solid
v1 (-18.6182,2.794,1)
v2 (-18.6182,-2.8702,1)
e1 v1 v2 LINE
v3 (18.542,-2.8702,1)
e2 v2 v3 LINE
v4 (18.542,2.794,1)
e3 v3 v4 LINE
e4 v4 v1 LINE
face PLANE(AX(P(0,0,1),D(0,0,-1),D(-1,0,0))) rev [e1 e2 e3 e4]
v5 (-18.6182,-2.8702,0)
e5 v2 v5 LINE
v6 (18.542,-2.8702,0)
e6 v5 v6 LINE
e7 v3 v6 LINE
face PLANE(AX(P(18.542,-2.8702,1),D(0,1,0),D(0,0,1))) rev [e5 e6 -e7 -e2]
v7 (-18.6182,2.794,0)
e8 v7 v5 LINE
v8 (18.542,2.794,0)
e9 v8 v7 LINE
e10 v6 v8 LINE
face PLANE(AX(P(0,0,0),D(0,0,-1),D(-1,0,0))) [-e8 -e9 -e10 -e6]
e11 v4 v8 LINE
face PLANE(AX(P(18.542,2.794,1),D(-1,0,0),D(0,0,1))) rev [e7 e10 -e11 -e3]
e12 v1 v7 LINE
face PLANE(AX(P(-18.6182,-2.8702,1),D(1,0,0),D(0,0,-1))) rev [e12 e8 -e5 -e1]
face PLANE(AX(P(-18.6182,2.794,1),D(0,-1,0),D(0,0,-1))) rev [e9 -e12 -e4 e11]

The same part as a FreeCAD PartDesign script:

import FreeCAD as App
import Part
import Sketcher
from FreeCAD import Vector
Q = App.Units.Quantity

doc = App.newDocument("Part")
params = doc.addObject("Spreadsheet::Sheet", "Params")
for row, (alias, value) in enumerate([
    ("sketch1_width", "1.463 in"),
    ("sketch1_height", "0.223 in"),
    ("pad1_length", "1 mm"),
], start=1):
    params.set(f"A{row}", alias)
    params.set(f"B{row}", "=" + value)
    params.setAlias(f"B{row}", alias)

body = doc.addObject("PartDesign::Body", "Body")

sketch1 = body.newObject("Sketcher::SketchObject", "Sketch")
sketch1.AttachmentSupport = (doc.getObject("XY_Plane"), [""])
sketch1.MapMode = "FlatFace"
sketch1.addGeometry([
    Part.LineSegment(Vector(-19, 3, 0), Vector(-19, -3, 0)),
    Part.LineSegment(Vector(-19, -3, 0), Vector(19, -3, 0)),
    Part.LineSegment(Vector(19, -3, 0), Vector(19, 3, 0)),
    Part.LineSegment(Vector(19, 3, 0), Vector(-19, 3, 0)),
], False)
sketch1.addConstraint([
    Sketcher.Constraint("Coincident", 0, 2, 1, 1),
    Sketcher.Constraint("Coincident", 1, 2, 2, 1),
    Sketcher.Constraint("Coincident", 2, 2, 3, 1),
    Sketcher.Constraint("Coincident", 3, 2, 0, 1),
    Sketcher.Constraint("Vertical", 0),
    Sketcher.Constraint("Horizontal", 1),
    Sketcher.Constraint("Vertical", 2),
    Sketcher.Constraint("Horizontal", 3),
    Sketcher.Constraint("DistanceX", 1, 1, 1, 2, Q("1.463 in")),
    Sketcher.Constraint("DistanceY", 0, 2, 0, 1, Q("0.223 in")),
    Sketcher.Constraint("DistanceX", -1, 1, 1, 2, Q("0.73 in")),
    Sketcher.Constraint("DistanceY", -1, 1, 2, 2, Q("0.11 in")),
])
sketch1.setExpression("Constraints[8]", "Params.sketch1_width")
sketch1.setExpression("Constraints[9]", "Params.sketch1_height")
pad1 = body.newObject("PartDesign::Pad", "Pad")
pad1.Profile = sketch1
pad1.setExpression("Length", "Params.pad1_length")

doc.recompute()
